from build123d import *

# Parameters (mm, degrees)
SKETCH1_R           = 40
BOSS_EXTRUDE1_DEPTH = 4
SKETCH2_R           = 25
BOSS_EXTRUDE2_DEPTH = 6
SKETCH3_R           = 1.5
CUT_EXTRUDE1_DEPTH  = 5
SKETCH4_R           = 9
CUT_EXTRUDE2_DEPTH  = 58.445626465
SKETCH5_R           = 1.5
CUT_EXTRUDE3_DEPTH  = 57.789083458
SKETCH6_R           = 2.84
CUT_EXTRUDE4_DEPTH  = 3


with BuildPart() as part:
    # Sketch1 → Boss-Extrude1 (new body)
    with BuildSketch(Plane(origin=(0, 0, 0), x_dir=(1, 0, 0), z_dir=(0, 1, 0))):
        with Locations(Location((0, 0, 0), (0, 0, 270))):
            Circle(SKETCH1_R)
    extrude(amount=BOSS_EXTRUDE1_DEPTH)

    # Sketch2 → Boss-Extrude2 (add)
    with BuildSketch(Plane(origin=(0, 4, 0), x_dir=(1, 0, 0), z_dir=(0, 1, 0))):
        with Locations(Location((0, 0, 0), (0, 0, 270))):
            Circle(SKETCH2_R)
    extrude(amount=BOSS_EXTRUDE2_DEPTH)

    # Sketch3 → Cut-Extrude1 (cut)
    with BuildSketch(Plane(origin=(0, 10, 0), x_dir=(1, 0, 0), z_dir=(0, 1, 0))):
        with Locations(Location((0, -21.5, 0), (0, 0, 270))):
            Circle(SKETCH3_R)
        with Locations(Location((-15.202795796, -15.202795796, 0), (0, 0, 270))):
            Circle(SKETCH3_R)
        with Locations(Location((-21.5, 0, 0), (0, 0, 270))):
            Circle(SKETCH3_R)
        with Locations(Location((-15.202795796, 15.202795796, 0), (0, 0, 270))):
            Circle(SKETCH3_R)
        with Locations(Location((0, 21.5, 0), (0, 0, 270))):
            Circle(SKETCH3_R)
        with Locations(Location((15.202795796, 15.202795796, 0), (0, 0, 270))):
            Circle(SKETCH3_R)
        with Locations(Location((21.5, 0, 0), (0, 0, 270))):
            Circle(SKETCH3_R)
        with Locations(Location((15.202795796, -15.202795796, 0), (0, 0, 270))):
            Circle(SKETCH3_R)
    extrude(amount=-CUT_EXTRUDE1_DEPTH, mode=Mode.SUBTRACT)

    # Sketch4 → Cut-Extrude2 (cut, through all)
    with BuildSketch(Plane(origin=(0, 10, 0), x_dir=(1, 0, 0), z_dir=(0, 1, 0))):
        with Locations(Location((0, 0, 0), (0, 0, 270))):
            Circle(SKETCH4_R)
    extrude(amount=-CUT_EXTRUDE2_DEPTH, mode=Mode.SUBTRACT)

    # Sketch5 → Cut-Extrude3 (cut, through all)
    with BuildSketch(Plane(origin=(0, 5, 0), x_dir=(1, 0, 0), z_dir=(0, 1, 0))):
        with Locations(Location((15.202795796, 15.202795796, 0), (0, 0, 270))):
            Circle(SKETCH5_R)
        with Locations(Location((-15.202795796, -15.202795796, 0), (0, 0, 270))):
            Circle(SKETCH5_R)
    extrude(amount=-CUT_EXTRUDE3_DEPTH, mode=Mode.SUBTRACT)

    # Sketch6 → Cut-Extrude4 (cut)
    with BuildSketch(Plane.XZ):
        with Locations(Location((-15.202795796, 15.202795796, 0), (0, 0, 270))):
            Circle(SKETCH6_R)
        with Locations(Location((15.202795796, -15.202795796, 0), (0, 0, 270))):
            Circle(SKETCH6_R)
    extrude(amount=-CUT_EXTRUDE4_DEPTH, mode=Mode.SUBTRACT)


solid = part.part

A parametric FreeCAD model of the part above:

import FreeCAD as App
import Part
import Sketcher

doc = App.newDocument("Part")
body = doc.addObject("PartDesign::Body", "Body")

sketch1 = body.newObject("Sketcher::SketchObject", "Sketch")
sketch1.AttachmentSupport = (doc.getObject("XZ_Plane"), [""])
sketch1.MapMode = "FlatFace"
sketch1.addGeometry(Part.Circle(App.Vector(0, 0, 0), App.Vector(0, 0, 1), 40), False)
sketch1.addConstraint(Sketcher.Constraint("Coincident", 0, 3, -1, 1))
sketch1.addConstraint(Sketcher.Constraint("Diameter", 0, 80.0))
pad1 = body.newObject("PartDesign::Pad", "Pad")
pad1.Profile = sketch1
pad1.Length = 4
pad1.Reversed = True

sketch2 = body.newObject("Sketcher::SketchObject", "Sketch001")
sketch2.AttachmentSupport = (doc.getObject("XZ_Plane"), [""])
sketch2.MapMode = "FlatFace"
sketch2.AttachmentOffset = App.Placement(App.Vector(0, 0, -4), App.Rotation())
sketch2.addGeometry(Part.Circle(App.Vector(0, 0, 0), App.Vector(0, 0, 1), 25), False)
sketch2.addConstraint(Sketcher.Constraint("Coincident", 0, 3, -1, 1))
sketch2.addConstraint(Sketcher.Constraint("Diameter", 0, 50.0))
pad2 = body.newObject("PartDesign::Pad", "Pad001")
pad2.Profile = sketch2
pad2.Length = 6
pad2.Reversed = True

sketch3 = body.newObject("Sketcher::SketchObject", "Sketch002")
sketch3.AttachmentSupport = (doc.getObject("XZ_Plane"), [""])
sketch3.MapMode = "FlatFace"
sketch3.AttachmentOffset = App.Placement(App.Vector(0, 0, -10), App.Rotation())
sketch3.addGeometry(Part.Circle(App.Vector(0, 21.5, 0), App.Vector(0, 0, 1), 1.5), False)
sketch3.addGeometry(Part.Circle(App.Vector(-15.2, 15.2, 0), App.Vector(0, 0, 1), 1.5), False)
sketch3.addGeometry(Part.Circle(App.Vector(-21.5, 0, 0), App.Vector(0, 0, 1), 1.5), False)
sketch3.addGeometry(Part.Circle(App.Vector(-15.2, -15.2, 0), App.Vector(0, 0, 1), 1.5), False)
sketch3.addGeometry(Part.Circle(App.Vector(0, -21.5, 0), App.Vector(0, 0, 1), 1.5), False)
sketch3.addGeometry(Part.Circle(App.Vector(15.2, -15.2, 0), App.Vector(0, 0, 1), 1.5), False)
sketch3.addGeometry(Part.Circle(App.Vector(21.5, 0, 0), App.Vector(0, 0, 1), 1.5), False)
sketch3.addGeometry(Part.Circle(App.Vector(15.2, 15.2, 0), App.Vector(0, 0, 1), 1.5), False)
sketch3.addConstraint(Sketcher.Constraint("Equal", 0, 1))
sketch3.addConstraint(Sketcher.Constraint("Equal", 1, 2))
sketch3.addConstraint(Sketcher.Constraint("Equal", 2, 3))
sketch3.addConstraint(Sketcher.Constraint("Equal", 3, 4))
sketch3.addConstraint(Sketcher.Constraint("Equal", 4, 5))
sketch3.addConstraint(Sketcher.Constraint("Equal", 5, 6))
sketch3.addConstraint(Sketcher.Constraint("Equal", 6, 7))
sketch3.addConstraint(Sketcher.Constraint("Symmetric", 0, 3, 4, 3, -1, 1))
sketch3.addConstraint(Sketcher.Constraint("Symmetric", 1, 3, 5, 3, -1, 1))
sketch3.addConstraint(Sketcher.Constraint("Symmetric", 2, 3, 6, 3, -1, 1))
sketch3.addConstraint(Sketcher.Constraint("Symmetric", 3, 3, 7, 3, -1, 1))
sketch3.addConstraint(Sketcher.Constraint("Symmetric", 3, 3, 5, 3, -2))
sketch3.addConstraint(Sketcher.Constraint("PointOnObject", 0, 3, -2))
sketch3.addConstraint(Sketcher.Constraint("PointOnObject", 2, 3, -1))
sketch3.addConstraint(Sketcher.Constraint("Diameter", 0, 3.0))
sketch3.addConstraint(Sketcher.Constraint("DistanceY", 4, 3, 0, 3, 43.0))
sketch3.addConstraint(Sketcher.Constraint("DistanceX", 2, 3, -1, 1, 21.5))
sketch3.addConstraint(Sketcher.Constraint("DistanceY", 3, 3, 1, 3, 30.405592))
sketch3.addConstraint(Sketcher.Constraint("DistanceX", 3, 3, 5, 3, 30.405592))
pocket1 = body.newObject("PartDesign::Pocket", "Pocket")
pocket1.Profile = sketch3
pocket1.Length = 5
pocket1.Reversed = True

sketch4 = body.newObject("Sketcher::SketchObject", "Sketch003")
sketch4.AttachmentSupport = (doc.getObject("XZ_Plane"), [""])
sketch4.MapMode = "FlatFace"
sketch4.AttachmentOffset = App.Placement(App.Vector(0, 0, -10), App.Rotation())
sketch4.addGeometry(Part.Circle(App.Vector(0, 0, 0), App.Vector(0, 0, 1), 9), False)
sketch4.addConstraint(Sketcher.Constraint("Coincident", 0, 3, -1, 1))
sketch4.addConstraint(Sketcher.Constraint("Diameter", 0, 18.0))
pocket2 = body.newObject("PartDesign::Pocket", "Pocket001")
pocket2.Profile = sketch4
pocket2.Type = "ThroughAll"
pocket2.Reversed = True

sketch5 = body.newObject("Sketcher::SketchObject", "Sketch004")
sketch5.AttachmentSupport = (doc.getObject("XZ_Plane"), [""])
sketch5.MapMode = "FlatFace"
sketch5.AttachmentOffset = App.Placement(App.Vector(0, 0, -5), App.Rotation())
sketch5.addGeometry(Part.Circle(App.Vector(15.2, -15.2, 0), App.Vector(0, 0, 1), 1.5), False)
sketch5.addGeometry(Part.Circle(App.Vector(-15.2, 15.2, 0), App.Vector(0, 0, 1), 1.5), False)
sketch5.addConstraint(Sketcher.Constraint("Equal", 0, 1))
sketch5.addConstraint(Sketcher.Constraint("Symmetric", 0, 3, 1, 3, -1, 1))
sketch5.addConstraint(Sketcher.Constraint("Diameter", 0, 3.0))
sketch5.addConstraint(Sketcher.Constraint("DistanceX", 1, 3, 0, 3, 30.405592))
sketch5.addConstraint(Sketcher.Constraint("DistanceY", 0, 3, 1, 3, 30.405592))
pocket3 = body.newObject("PartDesign::Pocket", "Pocket002")
pocket3.Profile = sketch5
pocket3.Type = "ThroughAll"
pocket3.Reversed = True

sketch6 = body.newObject("Sketcher::SketchObject", "Sketch005")
sketch6.AttachmentSupport = (doc.getObject("XZ_Plane"), [""])
sketch6.MapMode = "FlatFace"
sketch6.addGeometry(Part.Circle(App.Vector(-15.2, 15.2, 0), App.Vector(0, 0, 1), 2.8), False)
sketch6.addGeometry(Part.Circle(App.Vector(15.2, -15.2, 0), App.Vector(0, 0, 1), 2.8), False)
sketch6.addConstraint(Sketcher.Constraint("Equal", 0, 1))
sketch6.addConstraint(Sketcher.Constraint("Symmetric", 0, 3, 1, 3, -1, 1))
sketch6.addConstraint(Sketcher.Constraint("Diameter", 0, 5.68))
sketch6.addConstraint(Sketcher.Constraint("DistanceX", 0, 3, 1, 3, 30.405592))
sketch6.addConstraint(Sketcher.Constraint("DistanceY", 1, 3, 0, 3, 30.405592))
pocket4 = body.newObject("PartDesign::Pocket", "Pocket003")
pocket4.Profile = sketch6
pocket4.Length = 3

doc.recompute()
